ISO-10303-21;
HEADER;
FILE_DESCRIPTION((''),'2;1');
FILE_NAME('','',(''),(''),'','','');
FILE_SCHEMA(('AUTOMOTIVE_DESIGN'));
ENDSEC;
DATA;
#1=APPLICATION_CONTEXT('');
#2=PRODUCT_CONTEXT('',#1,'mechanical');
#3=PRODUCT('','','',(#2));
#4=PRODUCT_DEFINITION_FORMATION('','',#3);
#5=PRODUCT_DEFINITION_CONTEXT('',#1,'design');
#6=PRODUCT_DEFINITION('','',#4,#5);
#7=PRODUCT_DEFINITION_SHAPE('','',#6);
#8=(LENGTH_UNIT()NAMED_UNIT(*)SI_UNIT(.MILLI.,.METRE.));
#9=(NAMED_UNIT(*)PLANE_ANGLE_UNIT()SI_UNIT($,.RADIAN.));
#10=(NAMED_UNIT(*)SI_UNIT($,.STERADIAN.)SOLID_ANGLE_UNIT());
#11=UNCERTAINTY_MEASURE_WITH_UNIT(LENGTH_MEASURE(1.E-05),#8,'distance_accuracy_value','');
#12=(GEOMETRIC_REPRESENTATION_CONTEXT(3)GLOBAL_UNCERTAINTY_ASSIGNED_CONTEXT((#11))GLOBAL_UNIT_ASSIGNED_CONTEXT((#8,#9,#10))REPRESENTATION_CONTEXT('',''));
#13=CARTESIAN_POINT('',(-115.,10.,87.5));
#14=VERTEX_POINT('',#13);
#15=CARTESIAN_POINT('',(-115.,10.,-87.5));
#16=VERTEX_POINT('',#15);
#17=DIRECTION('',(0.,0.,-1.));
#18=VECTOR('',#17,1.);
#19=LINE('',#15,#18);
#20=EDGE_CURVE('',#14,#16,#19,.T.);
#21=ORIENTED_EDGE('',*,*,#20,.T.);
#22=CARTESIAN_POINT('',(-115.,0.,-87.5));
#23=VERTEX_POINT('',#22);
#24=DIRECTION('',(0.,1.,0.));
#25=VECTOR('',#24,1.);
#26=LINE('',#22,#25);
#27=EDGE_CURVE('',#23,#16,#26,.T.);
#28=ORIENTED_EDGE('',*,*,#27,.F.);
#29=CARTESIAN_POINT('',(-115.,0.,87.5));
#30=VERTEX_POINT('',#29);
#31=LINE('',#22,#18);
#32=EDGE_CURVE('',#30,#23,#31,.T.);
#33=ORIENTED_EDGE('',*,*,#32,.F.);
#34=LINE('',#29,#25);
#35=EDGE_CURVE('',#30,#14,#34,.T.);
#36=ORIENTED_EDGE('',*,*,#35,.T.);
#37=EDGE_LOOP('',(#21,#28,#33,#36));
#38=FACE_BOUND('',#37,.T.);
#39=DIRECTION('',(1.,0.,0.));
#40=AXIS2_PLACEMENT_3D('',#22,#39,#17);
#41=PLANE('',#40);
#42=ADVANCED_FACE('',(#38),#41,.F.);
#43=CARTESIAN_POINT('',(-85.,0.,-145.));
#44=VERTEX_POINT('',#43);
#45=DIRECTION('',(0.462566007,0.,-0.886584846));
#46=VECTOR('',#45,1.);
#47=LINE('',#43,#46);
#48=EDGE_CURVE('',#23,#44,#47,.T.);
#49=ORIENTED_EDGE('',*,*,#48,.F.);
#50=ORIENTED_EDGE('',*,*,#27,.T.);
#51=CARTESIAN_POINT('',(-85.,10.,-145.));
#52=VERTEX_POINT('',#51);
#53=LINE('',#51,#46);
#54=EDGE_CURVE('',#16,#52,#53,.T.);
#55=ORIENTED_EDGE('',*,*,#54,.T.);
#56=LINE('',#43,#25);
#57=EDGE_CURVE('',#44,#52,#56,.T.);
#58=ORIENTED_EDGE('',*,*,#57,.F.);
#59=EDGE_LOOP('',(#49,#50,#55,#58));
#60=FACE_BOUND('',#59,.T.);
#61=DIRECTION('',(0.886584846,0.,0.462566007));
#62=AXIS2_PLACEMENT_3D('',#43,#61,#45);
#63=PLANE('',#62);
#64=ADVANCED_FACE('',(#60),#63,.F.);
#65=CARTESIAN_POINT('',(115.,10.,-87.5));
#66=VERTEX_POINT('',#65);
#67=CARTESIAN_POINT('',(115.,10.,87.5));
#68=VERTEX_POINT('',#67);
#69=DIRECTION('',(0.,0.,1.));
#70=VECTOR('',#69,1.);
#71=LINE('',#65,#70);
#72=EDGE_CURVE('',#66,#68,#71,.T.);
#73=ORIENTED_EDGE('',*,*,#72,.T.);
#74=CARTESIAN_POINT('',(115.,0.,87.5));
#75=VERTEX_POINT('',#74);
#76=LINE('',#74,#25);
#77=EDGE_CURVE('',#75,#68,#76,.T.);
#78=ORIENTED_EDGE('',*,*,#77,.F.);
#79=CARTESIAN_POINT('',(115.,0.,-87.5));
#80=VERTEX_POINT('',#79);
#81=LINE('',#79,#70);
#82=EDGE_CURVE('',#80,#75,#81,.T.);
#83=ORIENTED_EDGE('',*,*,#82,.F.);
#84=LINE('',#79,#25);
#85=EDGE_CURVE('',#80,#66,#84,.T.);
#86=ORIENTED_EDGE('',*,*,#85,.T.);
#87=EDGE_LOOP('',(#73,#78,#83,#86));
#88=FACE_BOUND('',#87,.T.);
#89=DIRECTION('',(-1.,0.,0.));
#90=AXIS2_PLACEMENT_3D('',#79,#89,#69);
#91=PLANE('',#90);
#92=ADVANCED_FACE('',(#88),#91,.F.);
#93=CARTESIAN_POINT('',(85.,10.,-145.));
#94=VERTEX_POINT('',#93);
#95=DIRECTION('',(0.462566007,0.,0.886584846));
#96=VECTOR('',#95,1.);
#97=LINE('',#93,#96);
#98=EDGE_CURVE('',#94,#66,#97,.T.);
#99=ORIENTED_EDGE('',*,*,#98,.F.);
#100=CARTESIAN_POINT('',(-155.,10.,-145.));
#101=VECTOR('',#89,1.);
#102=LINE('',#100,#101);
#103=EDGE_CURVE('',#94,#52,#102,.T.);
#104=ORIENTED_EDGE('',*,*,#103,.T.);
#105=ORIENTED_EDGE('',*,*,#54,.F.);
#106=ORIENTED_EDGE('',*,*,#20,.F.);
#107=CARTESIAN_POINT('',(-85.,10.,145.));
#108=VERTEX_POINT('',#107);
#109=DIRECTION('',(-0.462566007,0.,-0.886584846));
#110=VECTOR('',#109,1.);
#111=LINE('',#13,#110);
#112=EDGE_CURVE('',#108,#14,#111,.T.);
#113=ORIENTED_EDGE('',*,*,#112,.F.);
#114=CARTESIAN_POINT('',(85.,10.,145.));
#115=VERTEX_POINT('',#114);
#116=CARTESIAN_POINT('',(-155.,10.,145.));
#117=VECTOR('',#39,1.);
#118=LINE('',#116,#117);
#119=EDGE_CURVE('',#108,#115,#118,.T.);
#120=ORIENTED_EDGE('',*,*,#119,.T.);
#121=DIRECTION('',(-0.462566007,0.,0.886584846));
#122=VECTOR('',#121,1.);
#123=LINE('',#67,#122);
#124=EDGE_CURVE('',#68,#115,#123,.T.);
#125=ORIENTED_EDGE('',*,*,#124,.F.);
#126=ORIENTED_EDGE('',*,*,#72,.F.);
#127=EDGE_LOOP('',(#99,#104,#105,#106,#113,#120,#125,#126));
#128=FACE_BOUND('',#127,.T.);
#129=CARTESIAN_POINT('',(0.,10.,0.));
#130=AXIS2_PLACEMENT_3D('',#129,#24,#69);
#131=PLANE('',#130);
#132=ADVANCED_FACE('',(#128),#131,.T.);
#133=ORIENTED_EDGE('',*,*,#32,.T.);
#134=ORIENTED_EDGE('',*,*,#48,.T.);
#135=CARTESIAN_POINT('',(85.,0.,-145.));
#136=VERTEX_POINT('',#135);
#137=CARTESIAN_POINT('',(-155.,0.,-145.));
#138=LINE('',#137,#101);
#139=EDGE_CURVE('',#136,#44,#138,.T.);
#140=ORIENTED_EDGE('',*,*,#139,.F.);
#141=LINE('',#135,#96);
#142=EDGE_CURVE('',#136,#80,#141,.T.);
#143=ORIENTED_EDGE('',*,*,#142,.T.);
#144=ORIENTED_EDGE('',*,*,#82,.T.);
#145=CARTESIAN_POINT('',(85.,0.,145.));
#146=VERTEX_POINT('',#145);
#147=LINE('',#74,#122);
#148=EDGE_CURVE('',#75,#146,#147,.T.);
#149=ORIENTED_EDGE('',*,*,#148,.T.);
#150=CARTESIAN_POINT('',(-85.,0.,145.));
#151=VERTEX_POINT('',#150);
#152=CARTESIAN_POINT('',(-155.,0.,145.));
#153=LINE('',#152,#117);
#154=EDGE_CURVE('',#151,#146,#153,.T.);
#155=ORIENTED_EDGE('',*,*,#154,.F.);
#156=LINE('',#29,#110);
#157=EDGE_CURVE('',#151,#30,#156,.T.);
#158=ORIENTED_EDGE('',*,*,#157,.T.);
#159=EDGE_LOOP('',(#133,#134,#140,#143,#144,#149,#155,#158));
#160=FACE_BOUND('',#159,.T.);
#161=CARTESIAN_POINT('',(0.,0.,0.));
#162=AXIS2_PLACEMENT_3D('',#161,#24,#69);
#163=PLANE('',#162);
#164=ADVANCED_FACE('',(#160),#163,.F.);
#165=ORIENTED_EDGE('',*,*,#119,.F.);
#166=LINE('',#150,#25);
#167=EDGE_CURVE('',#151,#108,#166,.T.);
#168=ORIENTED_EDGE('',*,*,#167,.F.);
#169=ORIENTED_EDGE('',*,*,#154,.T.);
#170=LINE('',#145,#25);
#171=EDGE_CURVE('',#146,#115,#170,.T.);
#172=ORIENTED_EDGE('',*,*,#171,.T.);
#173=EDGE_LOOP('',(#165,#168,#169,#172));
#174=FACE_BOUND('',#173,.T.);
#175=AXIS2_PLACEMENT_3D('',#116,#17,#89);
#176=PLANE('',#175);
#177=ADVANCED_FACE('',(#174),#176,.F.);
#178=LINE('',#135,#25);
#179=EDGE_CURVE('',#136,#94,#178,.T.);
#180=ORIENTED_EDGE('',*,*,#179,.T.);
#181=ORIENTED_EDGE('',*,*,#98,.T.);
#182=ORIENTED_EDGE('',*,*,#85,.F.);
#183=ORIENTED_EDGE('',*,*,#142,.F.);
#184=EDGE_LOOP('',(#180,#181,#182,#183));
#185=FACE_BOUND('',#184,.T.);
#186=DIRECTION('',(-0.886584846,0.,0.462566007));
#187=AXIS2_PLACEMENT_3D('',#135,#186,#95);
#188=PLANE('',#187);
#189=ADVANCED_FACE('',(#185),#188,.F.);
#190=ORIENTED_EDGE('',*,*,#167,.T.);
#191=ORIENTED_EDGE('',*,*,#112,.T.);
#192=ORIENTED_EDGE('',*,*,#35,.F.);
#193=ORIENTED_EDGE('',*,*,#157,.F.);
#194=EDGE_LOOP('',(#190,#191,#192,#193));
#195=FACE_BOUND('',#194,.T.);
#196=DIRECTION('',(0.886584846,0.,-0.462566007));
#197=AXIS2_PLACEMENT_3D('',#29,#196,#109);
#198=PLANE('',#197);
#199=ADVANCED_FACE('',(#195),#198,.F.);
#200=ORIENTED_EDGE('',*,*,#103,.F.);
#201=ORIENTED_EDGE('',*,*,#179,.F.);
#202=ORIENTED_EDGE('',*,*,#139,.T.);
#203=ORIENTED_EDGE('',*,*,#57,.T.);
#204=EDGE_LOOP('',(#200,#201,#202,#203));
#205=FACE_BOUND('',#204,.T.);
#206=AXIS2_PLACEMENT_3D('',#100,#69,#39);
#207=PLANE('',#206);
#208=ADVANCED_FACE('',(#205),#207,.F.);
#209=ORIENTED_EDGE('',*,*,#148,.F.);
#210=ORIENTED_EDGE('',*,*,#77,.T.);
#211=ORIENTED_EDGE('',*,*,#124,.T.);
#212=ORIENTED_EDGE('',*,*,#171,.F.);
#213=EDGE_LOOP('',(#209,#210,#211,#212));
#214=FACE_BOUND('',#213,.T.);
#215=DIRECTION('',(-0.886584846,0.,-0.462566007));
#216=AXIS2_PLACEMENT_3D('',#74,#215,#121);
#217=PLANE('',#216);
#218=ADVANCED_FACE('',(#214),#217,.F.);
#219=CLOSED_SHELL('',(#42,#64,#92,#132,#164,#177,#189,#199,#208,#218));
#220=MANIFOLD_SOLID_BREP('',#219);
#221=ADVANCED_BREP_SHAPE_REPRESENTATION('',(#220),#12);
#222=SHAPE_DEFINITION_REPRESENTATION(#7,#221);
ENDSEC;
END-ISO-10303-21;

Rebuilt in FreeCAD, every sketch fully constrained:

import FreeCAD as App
import Part
import Sketcher

V = App.Vector
Q = App.Units.Quantity


def add_polygon(sketch, points):
    """Adds a closed chain of lines whose ends are joined by coincident constraints."""
    first, n = sketch.GeometryCount, len(points)
    for a, b in zip(points, points[1:] + points[:1]):
        sketch.addGeometry(Part.LineSegment(App.Vector(*a, 0), App.Vector(*b, 0)), False)
    for i in range(n):
        sketch.addConstraint(Sketcher.Constraint("Coincident", first + i, 2, first + (i + 1) % n, 1))

doc = App.newDocument("Part")
body = doc.addObject("PartDesign::Body", "Body")

sketch1 = doc.addObject("Sketcher::SketchObject", "Sketch")
body.addObject(sketch1)
sketch1.AttachmentSupport = (doc.XZ_Plane, [""])
sketch1.MapMode = "FlatFace"
add_polygon(sketch1, [(-155, -145), (-155, 145), (155, 145), (155, -145)])
sketch1.addConstraint([
    Sketcher.Constraint("Vertical", 0),
    Sketcher.Constraint("Horizontal", 1),
    Sketcher.Constraint("Vertical", 2),
    Sketcher.Constraint("Horizontal", 3),
    Sketcher.Constraint("Symmetric", 0, 2, 2, 2, -1, 1),
    Sketcher.Constraint("DistanceX", 1, 1, 1, 2, Q("310 mm")),
    Sketcher.Constraint("DistanceY", 0, 1, 0, 2, Q("290 mm")),
])
pad1 = doc.addObject("PartDesign::Pad", "Pad")
body.addObject(pad1)
pad1.Profile = sketch1
pad1.Length = 10
pad1.Reversed = True

sketch2 = doc.addObject("Sketcher::SketchObject", "Sketch001")
body.addObject(sketch2)
sketch2.AttachmentSupport = (doc.XZ_Plane, [""])
sketch2.MapMode = "FlatFace"
sketch2.AttachmentOffset = App.Placement(V(0, 0, -10), App.Rotation())
add_polygon(sketch2, [(-115, -87), (-85, -145), (-155, -145), (-155, 145), (-85, 145), (-115, 88)])
add_polygon(sketch2, [(155, 145), (155, -145), (85, -145), (115, -87), (115, 88), (85, 145)])
sketch2.addConstraint([
    Sketcher.Constraint("Horizontal", 1),
    Sketcher.Constraint("Vertical", 2),
    Sketcher.Constraint("Horizontal", 3),
    Sketcher.Constraint("Vertical", 5),
    Sketcher.Constraint("Vertical", 6),
    Sketcher.Constraint("Horizontal", 7),
    Sketcher.Constraint("Vertical", 9),
    Sketcher.Constraint("Horizontal", 11),
    Sketcher.Constraint("Symmetric", 2, 2, 6, 2, -1, 1),
    Sketcher.Constraint("Symmetric", 4, 2, 8, 2, -1, 1),
    Sketcher.Constraint("Symmetric", 0, 2, 10, 2, -1, 1),
    Sketcher.Constraint("Symmetric", 0, 2, 7, 2, -2),
    Sketcher.Constraint("Parallel", 4, 8),
    Sketcher.Constraint("Parallel", 0, 10),
    Sketcher.Constraint("Horizontal", 5, 2, 8, 2),
    Sketcher.Constraint("DistanceX", 1, 2, 1, 1, Q("70 mm")),
    Sketcher.Constraint("DistanceY", 2, 1, 2, 2, Q("290 mm")),
    Sketcher.Constraint("DistanceY", 5, 2, 5, 1, Q("175 mm")),
    Sketcher.Constraint("DistanceX", 0, 2, -1, 1, Q("85 mm")),
    Sketcher.Constraint("DistanceX", 4, 2, -1, 1, Q("115 mm")),
])
pocket1 = doc.addObject("PartDesign::Pocket", "Pocket")
body.addObject(pocket1)
pocket1.Profile = sketch2
pocket1.Type = "ThroughAll"
pocket1.Reversed = True

doc.recompute()
